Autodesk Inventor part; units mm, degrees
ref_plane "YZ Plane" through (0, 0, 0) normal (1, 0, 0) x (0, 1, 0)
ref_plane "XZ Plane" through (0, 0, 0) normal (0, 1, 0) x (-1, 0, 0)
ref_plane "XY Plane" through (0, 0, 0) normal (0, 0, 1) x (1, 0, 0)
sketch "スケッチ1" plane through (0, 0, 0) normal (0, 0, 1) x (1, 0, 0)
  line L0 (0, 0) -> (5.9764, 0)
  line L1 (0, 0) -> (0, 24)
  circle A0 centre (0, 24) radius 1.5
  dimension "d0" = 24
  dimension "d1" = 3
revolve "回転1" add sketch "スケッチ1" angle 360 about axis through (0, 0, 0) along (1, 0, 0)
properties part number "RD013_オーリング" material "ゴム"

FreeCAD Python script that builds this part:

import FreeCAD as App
import Part
import Sketcher

V = App.Vector
Q = App.Units.Quantity

doc = App.newDocument("Part")
body = doc.addObject("PartDesign::Body", "Body")

sketch1 = doc.addObject("Sketcher::SketchObject", "Sketch")
body.addObject(sketch1)
sketch1.AttachmentSupport = (doc.XY_Plane, [""])
sketch1.MapMode = "FlatFace"
sketch1.addGeometry(Part.Circle(V(0, 24, 0), V(0, 0, 1), 1.5), False)
sketch1.addConstraint([
    Sketcher.Constraint("PointOnObject", 0, 3, -2),
    Sketcher.Constraint("Diameter", 0, Q("3 mm")),
    Sketcher.Constraint("DistanceY", -1, 1, 0, 3, Q("24 mm")),
])
revolution = doc.addObject("PartDesign::Revolution", "Revolution")
body.addObject(revolution)
revolution.Profile = sketch1
revolution.ReferenceAxis = (sketch1, ["H_Axis"])
revolution.Angle = 360

doc.recompute()
